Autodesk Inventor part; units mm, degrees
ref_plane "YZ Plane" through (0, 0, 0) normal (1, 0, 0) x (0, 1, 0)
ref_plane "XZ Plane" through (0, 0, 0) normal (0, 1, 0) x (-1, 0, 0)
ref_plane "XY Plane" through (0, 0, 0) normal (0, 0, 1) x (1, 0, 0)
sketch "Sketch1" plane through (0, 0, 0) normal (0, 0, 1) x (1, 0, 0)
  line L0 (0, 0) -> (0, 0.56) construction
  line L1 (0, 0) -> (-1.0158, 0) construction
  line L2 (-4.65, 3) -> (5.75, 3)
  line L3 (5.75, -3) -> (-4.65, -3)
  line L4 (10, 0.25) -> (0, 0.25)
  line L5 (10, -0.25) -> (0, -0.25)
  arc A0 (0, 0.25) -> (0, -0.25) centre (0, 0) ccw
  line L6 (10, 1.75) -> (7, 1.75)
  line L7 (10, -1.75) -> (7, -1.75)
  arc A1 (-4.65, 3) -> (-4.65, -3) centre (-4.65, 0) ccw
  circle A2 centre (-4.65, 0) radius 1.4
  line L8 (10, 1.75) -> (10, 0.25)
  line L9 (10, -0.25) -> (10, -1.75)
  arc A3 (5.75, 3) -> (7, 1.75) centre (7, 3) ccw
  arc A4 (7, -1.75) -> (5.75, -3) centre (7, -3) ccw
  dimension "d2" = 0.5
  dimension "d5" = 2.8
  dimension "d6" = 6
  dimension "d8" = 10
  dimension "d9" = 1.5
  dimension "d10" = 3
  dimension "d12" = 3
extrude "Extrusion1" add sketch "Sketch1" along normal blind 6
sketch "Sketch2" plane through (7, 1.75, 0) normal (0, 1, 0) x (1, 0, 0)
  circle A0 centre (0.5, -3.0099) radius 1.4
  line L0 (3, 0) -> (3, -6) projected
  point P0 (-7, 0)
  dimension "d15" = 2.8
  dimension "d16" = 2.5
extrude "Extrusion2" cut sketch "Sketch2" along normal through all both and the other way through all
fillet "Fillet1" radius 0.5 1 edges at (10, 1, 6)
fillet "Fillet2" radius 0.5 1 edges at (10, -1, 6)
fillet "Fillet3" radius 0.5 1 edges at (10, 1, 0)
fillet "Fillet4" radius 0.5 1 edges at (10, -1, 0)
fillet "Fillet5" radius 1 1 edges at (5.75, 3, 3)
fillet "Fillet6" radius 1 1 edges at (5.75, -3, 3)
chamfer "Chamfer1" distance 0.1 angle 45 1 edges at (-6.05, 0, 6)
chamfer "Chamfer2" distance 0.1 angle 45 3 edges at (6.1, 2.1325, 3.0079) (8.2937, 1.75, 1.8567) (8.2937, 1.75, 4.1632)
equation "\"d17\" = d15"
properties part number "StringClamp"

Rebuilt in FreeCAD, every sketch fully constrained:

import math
import FreeCAD as App
import Part
import Sketcher


def edges_at(feature, points):
    """Names of the edges that pass closest to the given points."""
    edges = feature.Shape.Edges
    near = lambda p: min(range(len(edges)), key=lambda i: edges[i].distToShape(Part.Vertex(*p))[0])
    return sorted({f"Edge{near(p) + 1}" for p in points})

doc = App.newDocument("Part")
params = doc.addObject("Spreadsheet::Sheet", "Params")
for row, (alias, value) in enumerate([
    ("sketch1_radius", "3 mm"),
    ("sketch1_diameter", "2.8 mm"),
    ("sketch1_width", "3 mm"),
    ("sketch1_width2", "10 mm"),
    ("sketch1_radius2", "0.25 mm"),
    ("pad1_length", "6 mm"),
    ("sketch2_diameter", "2.8 mm"),
    ("fillet_radius", "0.5 mm"),
    ("fillet2_radius", "0.5 mm"),
    ("fillet3_radius", "0.5 mm"),
    ("fillet4_radius", "0.5 mm"),
    ("fillet5_radius", "1 mm"),
    ("fillet6_radius", "1 mm"),
    ("chamfer_size", "0.1 mm"),
    ("chamfer2_size", "0.1 mm"),
], start=1):
    params.set(f"A{row}", alias)
    params.set(f"B{row}", "=" + value)
    params.setAlias(f"B{row}", alias)

body = doc.addObject("PartDesign::Body", "Body")

sketch1 = body.newObject("Sketcher::SketchObject", "Sketch")
sketch1.AttachmentSupport = (doc.getObject("XY_Plane"), [""])
sketch1.MapMode = "FlatFace"
sketch1.addGeometry(Part.LineSegment(App.Vector(5.75, 3, 0), App.Vector(-4.65, 3, 0)), False)
sketch1.addGeometry(Part.ArcOfCircle(Part.Circle(App.Vector(-4.65, 0, 0), App.Vector(0, 0, 1), 3), math.radians(90), math.radians(270)), False)
sketch1.addGeometry(Part.LineSegment(App.Vector(-4.65, -3, 0), App.Vector(5.75, -3, 0)), False)
sketch1.addGeometry(Part.ArcOfCircle(Part.Circle(App.Vector(7, -3, 0), App.Vector(0, 0, 1), 1.25), math.radians(90), math.radians(180)), False)
sketch1.addGeometry(Part.LineSegment(App.Vector(7, -1.75, 0), App.Vector(10, -1.75, 0)), False)
sketch1.addGeometry(Part.LineSegment(App.Vector(10, -1.75, 0), App.Vector(10, -0.25, 0)), False)
sketch1.addGeometry(Part.LineSegment(App.Vector(10, -0.25, 0), App.Vector(0, -0.25, 0)), False)
sketch1.addGeometry(Part.ArcOfCircle(Part.Circle(App.Vector(0, 0, 0), App.Vector(0, 0, 1), 0.25), math.radians(90), math.radians(270)), False)
sketch1.addGeometry(Part.LineSegment(App.Vector(0, 0.25, 0), App.Vector(10, 0.25, 0)), False)
sketch1.addGeometry(Part.LineSegment(App.Vector(10, 0.25, 0), App.Vector(10, 1.75, 0)), False)
sketch1.addGeometry(Part.LineSegment(App.Vector(10, 1.75, 0), App.Vector(7, 1.75, 0)), False)
sketch1.addGeometry(Part.ArcOfCircle(Part.Circle(App.Vector(7, 3, 0), App.Vector(0, 0, 1), 1.25), math.radians(180), math.radians(270)), False)
sketch1.addGeometry(Part.Circle(App.Vector(-4.65, 0, 0), App.Vector(0, 0, 1), 1.4), False)
sketch1.addConstraint(Sketcher.Constraint("Tangent", 0, 2, 1, 1))
sketch1.addConstraint(Sketcher.Constraint("Tangent", 1, 2, 2, 1))
sketch1.addConstraint(Sketcher.Constraint("Coincident", 2, 2, 3, 2))
sketch1.addConstraint(Sketcher.Constraint("Tangent", 3, 1, 4, 1))
sketch1.addConstraint(Sketcher.Constraint("Coincident", 4, 2, 5, 1))
sketch1.addConstraint(Sketcher.Constraint("Coincident", 5, 2, 6, 1))
sketch1.addConstraint(Sketcher.Constraint("Tangent", 6, 2, 7, 2))
sketch1.addConstraint(Sketcher.Constraint("Tangent", 7, 1, 8, 1))
sketch1.addConstraint(Sketcher.Constraint("Coincident", 8, 2, 9, 1))
sketch1.addConstraint(Sketcher.Constraint("Coincident", 9, 2, 10, 1))
sketch1.addConstraint(Sketcher.Constraint("Tangent", 10, 2, 11, 2))
sketch1.addConstraint(Sketcher.Constraint("Coincident", 11, 1, 0, 1))
sketch1.addConstraint(Sketcher.Constraint("Horizontal", 0))
sketch1.addConstraint(Sketcher.Constraint("Horizontal", 2))
sketch1.addConstraint(Sketcher.Constraint("Horizontal", 4))
sketch1.addConstraint(Sketcher.Constraint("Vertical", 5))
sketch1.addConstraint(Sketcher.Constraint("Horizontal", 6))
sketch1.addConstraint(Sketcher.Constraint("Horizontal", 8))
sketch1.addConstraint(Sketcher.Constraint("Vertical", 9))
sketch1.addConstraint(Sketcher.Constraint("Horizontal", 10))
sketch1.addConstraint(Sketcher.Constraint("Coincident", 7, 3, -1, 1))
sketch1.addConstraint(Sketcher.Constraint("Coincident", 12, 3, 1, 3))
sketch1.addConstraint(Sketcher.Constraint("Equal", 3, 11))
sketch1.addConstraint(Sketcher.Constraint("Symmetric", 3, 3, 11, 3, -1))
sketch1.addConstraint(Sketcher.Constraint("PointOnObject", 1, 3, -1))
sketch1.addConstraint(Sketcher.Constraint("Horizontal", 11, 3, 0, 2))
sketch1.addConstraint(Sketcher.Constraint("Vertical", 5, 2, 8, 2))
sketch1.addConstraint(Sketcher.Constraint("Radius", 1, 3.0))
sketch1.addConstraint(Sketcher.Constraint("Diameter", 12, 2.8))
sketch1.addConstraint(Sketcher.Constraint("DistanceX", 4, 1, 4, 2, 3.0))
sketch1.addConstraint(Sketcher.Constraint("DistanceX", 6, 2, 6, 1, 10.0))
sketch1.addConstraint(Sketcher.Constraint("Radius", 7, 0.25))
sketch1.addConstraint(Sketcher.Constraint("DistanceY", 5, 1, 5, 2, 1.5))
sketch1.addConstraint(Sketcher.Constraint("DistanceX", 0, 2, 0, 1, 10.4))
sketch1.setExpression("Constraints[27]", "Params.sketch1_radius")
sketch1.setExpression("Constraints[28]", "Params.sketch1_diameter")
sketch1.setExpression("Constraints[29]", "Params.sketch1_width")
sketch1.setExpression("Constraints[30]", "Params.sketch1_width2")
sketch1.setExpression("Constraints[31]", "Params.sketch1_radius2")
pad1 = body.newObject("PartDesign::Pad", "Pad")
pad1.Profile = sketch1
pad1.setExpression("Length", "Params.pad1_length")

sketch2 = body.newObject("Sketcher::SketchObject", "Sketch001")
sketch2.AttachmentSupport = (doc.getObject("XZ_Plane"), [""])
sketch2.MapMode = "FlatFace"
sketch2.AttachmentOffset = App.Placement(App.Vector(0, 0, -1.75), App.Rotation())
sketch2.addGeometry(Part.Circle(App.Vector(7.5, 3.0099, 0), App.Vector(0, 0, 1), 1.4), False)
sketch2.addConstraint(Sketcher.Constraint("Diameter", 0, 2.8))
sketch2.addConstraint(Sketcher.Constraint("DistanceX", -1, 1, 0, 3, 7.5))
sketch2.addConstraint(Sketcher.Constraint("DistanceY", -1, 1, 0, 3, 3.01))
sketch2.setExpression("Constraints[0]", "Params.sketch2_diameter")
pocket1 = body.newObject("PartDesign::Pocket", "Pocket")
pocket1.Profile = sketch2
pocket1.Type = "ThroughAll"
pocket1.Midplane = True
doc.recompute()

fillet = body.newObject("PartDesign::Fillet", "Fillet")
fillet.Base = (pocket1, edges_at(pocket1, [(10, 1, 6)]))
fillet.setExpression("Radius", "Params.fillet_radius")
doc.recompute()

fillet2 = body.newObject("PartDesign::Fillet", "Fillet001")
fillet2.Base = (fillet, edges_at(fillet, [(10, -1, 6)]))
fillet2.setExpression("Radius", "Params.fillet2_radius")
doc.recompute()

fillet3 = body.newObject("PartDesign::Fillet", "Fillet002")
fillet3.Base = (fillet2, edges_at(fillet2, [(10, 1, 0)]))
fillet3.setExpression("Radius", "Params.fillet3_radius")
doc.recompute()

fillet4 = body.newObject("PartDesign::Fillet", "Fillet003")
fillet4.Base = (fillet3, edges_at(fillet3, [(10, -1, 0)]))
fillet4.setExpression("Radius", "Params.fillet4_radius")
doc.recompute()

fillet5 = body.newObject("PartDesign::Fillet", "Fillet004")
fillet5.Base = (fillet4, edges_at(fillet4, [(5.75, 3, 3)]))
fillet5.setExpression("Radius", "Params.fillet5_radius")
doc.recompute()

fillet6 = body.newObject("PartDesign::Fillet", "Fillet005")
fillet6.Base = (fillet5, edges_at(fillet5, [(5.75, -3, 3)]))
fillet6.setExpression("Radius", "Params.fillet6_radius")
doc.recompute()

chamfer = body.newObject("PartDesign::Chamfer", "Chamfer")
chamfer.Base = (fillet6, edges_at(fillet6, [(-6.05, 0, 6)]))
chamfer.setExpression("Size", "Params.chamfer_size")
doc.recompute()

chamfer2 = body.newObject("PartDesign::Chamfer", "Chamfer001")
chamfer2.Base = (chamfer, edges_at(chamfer, [(6.1, 2.132, 3.008), (8.294, 1.75, 1.857), (8.294, 1.75, 4.163)]))
chamfer2.setExpression("Size", "Params.chamfer2_size")

doc.recompute()
